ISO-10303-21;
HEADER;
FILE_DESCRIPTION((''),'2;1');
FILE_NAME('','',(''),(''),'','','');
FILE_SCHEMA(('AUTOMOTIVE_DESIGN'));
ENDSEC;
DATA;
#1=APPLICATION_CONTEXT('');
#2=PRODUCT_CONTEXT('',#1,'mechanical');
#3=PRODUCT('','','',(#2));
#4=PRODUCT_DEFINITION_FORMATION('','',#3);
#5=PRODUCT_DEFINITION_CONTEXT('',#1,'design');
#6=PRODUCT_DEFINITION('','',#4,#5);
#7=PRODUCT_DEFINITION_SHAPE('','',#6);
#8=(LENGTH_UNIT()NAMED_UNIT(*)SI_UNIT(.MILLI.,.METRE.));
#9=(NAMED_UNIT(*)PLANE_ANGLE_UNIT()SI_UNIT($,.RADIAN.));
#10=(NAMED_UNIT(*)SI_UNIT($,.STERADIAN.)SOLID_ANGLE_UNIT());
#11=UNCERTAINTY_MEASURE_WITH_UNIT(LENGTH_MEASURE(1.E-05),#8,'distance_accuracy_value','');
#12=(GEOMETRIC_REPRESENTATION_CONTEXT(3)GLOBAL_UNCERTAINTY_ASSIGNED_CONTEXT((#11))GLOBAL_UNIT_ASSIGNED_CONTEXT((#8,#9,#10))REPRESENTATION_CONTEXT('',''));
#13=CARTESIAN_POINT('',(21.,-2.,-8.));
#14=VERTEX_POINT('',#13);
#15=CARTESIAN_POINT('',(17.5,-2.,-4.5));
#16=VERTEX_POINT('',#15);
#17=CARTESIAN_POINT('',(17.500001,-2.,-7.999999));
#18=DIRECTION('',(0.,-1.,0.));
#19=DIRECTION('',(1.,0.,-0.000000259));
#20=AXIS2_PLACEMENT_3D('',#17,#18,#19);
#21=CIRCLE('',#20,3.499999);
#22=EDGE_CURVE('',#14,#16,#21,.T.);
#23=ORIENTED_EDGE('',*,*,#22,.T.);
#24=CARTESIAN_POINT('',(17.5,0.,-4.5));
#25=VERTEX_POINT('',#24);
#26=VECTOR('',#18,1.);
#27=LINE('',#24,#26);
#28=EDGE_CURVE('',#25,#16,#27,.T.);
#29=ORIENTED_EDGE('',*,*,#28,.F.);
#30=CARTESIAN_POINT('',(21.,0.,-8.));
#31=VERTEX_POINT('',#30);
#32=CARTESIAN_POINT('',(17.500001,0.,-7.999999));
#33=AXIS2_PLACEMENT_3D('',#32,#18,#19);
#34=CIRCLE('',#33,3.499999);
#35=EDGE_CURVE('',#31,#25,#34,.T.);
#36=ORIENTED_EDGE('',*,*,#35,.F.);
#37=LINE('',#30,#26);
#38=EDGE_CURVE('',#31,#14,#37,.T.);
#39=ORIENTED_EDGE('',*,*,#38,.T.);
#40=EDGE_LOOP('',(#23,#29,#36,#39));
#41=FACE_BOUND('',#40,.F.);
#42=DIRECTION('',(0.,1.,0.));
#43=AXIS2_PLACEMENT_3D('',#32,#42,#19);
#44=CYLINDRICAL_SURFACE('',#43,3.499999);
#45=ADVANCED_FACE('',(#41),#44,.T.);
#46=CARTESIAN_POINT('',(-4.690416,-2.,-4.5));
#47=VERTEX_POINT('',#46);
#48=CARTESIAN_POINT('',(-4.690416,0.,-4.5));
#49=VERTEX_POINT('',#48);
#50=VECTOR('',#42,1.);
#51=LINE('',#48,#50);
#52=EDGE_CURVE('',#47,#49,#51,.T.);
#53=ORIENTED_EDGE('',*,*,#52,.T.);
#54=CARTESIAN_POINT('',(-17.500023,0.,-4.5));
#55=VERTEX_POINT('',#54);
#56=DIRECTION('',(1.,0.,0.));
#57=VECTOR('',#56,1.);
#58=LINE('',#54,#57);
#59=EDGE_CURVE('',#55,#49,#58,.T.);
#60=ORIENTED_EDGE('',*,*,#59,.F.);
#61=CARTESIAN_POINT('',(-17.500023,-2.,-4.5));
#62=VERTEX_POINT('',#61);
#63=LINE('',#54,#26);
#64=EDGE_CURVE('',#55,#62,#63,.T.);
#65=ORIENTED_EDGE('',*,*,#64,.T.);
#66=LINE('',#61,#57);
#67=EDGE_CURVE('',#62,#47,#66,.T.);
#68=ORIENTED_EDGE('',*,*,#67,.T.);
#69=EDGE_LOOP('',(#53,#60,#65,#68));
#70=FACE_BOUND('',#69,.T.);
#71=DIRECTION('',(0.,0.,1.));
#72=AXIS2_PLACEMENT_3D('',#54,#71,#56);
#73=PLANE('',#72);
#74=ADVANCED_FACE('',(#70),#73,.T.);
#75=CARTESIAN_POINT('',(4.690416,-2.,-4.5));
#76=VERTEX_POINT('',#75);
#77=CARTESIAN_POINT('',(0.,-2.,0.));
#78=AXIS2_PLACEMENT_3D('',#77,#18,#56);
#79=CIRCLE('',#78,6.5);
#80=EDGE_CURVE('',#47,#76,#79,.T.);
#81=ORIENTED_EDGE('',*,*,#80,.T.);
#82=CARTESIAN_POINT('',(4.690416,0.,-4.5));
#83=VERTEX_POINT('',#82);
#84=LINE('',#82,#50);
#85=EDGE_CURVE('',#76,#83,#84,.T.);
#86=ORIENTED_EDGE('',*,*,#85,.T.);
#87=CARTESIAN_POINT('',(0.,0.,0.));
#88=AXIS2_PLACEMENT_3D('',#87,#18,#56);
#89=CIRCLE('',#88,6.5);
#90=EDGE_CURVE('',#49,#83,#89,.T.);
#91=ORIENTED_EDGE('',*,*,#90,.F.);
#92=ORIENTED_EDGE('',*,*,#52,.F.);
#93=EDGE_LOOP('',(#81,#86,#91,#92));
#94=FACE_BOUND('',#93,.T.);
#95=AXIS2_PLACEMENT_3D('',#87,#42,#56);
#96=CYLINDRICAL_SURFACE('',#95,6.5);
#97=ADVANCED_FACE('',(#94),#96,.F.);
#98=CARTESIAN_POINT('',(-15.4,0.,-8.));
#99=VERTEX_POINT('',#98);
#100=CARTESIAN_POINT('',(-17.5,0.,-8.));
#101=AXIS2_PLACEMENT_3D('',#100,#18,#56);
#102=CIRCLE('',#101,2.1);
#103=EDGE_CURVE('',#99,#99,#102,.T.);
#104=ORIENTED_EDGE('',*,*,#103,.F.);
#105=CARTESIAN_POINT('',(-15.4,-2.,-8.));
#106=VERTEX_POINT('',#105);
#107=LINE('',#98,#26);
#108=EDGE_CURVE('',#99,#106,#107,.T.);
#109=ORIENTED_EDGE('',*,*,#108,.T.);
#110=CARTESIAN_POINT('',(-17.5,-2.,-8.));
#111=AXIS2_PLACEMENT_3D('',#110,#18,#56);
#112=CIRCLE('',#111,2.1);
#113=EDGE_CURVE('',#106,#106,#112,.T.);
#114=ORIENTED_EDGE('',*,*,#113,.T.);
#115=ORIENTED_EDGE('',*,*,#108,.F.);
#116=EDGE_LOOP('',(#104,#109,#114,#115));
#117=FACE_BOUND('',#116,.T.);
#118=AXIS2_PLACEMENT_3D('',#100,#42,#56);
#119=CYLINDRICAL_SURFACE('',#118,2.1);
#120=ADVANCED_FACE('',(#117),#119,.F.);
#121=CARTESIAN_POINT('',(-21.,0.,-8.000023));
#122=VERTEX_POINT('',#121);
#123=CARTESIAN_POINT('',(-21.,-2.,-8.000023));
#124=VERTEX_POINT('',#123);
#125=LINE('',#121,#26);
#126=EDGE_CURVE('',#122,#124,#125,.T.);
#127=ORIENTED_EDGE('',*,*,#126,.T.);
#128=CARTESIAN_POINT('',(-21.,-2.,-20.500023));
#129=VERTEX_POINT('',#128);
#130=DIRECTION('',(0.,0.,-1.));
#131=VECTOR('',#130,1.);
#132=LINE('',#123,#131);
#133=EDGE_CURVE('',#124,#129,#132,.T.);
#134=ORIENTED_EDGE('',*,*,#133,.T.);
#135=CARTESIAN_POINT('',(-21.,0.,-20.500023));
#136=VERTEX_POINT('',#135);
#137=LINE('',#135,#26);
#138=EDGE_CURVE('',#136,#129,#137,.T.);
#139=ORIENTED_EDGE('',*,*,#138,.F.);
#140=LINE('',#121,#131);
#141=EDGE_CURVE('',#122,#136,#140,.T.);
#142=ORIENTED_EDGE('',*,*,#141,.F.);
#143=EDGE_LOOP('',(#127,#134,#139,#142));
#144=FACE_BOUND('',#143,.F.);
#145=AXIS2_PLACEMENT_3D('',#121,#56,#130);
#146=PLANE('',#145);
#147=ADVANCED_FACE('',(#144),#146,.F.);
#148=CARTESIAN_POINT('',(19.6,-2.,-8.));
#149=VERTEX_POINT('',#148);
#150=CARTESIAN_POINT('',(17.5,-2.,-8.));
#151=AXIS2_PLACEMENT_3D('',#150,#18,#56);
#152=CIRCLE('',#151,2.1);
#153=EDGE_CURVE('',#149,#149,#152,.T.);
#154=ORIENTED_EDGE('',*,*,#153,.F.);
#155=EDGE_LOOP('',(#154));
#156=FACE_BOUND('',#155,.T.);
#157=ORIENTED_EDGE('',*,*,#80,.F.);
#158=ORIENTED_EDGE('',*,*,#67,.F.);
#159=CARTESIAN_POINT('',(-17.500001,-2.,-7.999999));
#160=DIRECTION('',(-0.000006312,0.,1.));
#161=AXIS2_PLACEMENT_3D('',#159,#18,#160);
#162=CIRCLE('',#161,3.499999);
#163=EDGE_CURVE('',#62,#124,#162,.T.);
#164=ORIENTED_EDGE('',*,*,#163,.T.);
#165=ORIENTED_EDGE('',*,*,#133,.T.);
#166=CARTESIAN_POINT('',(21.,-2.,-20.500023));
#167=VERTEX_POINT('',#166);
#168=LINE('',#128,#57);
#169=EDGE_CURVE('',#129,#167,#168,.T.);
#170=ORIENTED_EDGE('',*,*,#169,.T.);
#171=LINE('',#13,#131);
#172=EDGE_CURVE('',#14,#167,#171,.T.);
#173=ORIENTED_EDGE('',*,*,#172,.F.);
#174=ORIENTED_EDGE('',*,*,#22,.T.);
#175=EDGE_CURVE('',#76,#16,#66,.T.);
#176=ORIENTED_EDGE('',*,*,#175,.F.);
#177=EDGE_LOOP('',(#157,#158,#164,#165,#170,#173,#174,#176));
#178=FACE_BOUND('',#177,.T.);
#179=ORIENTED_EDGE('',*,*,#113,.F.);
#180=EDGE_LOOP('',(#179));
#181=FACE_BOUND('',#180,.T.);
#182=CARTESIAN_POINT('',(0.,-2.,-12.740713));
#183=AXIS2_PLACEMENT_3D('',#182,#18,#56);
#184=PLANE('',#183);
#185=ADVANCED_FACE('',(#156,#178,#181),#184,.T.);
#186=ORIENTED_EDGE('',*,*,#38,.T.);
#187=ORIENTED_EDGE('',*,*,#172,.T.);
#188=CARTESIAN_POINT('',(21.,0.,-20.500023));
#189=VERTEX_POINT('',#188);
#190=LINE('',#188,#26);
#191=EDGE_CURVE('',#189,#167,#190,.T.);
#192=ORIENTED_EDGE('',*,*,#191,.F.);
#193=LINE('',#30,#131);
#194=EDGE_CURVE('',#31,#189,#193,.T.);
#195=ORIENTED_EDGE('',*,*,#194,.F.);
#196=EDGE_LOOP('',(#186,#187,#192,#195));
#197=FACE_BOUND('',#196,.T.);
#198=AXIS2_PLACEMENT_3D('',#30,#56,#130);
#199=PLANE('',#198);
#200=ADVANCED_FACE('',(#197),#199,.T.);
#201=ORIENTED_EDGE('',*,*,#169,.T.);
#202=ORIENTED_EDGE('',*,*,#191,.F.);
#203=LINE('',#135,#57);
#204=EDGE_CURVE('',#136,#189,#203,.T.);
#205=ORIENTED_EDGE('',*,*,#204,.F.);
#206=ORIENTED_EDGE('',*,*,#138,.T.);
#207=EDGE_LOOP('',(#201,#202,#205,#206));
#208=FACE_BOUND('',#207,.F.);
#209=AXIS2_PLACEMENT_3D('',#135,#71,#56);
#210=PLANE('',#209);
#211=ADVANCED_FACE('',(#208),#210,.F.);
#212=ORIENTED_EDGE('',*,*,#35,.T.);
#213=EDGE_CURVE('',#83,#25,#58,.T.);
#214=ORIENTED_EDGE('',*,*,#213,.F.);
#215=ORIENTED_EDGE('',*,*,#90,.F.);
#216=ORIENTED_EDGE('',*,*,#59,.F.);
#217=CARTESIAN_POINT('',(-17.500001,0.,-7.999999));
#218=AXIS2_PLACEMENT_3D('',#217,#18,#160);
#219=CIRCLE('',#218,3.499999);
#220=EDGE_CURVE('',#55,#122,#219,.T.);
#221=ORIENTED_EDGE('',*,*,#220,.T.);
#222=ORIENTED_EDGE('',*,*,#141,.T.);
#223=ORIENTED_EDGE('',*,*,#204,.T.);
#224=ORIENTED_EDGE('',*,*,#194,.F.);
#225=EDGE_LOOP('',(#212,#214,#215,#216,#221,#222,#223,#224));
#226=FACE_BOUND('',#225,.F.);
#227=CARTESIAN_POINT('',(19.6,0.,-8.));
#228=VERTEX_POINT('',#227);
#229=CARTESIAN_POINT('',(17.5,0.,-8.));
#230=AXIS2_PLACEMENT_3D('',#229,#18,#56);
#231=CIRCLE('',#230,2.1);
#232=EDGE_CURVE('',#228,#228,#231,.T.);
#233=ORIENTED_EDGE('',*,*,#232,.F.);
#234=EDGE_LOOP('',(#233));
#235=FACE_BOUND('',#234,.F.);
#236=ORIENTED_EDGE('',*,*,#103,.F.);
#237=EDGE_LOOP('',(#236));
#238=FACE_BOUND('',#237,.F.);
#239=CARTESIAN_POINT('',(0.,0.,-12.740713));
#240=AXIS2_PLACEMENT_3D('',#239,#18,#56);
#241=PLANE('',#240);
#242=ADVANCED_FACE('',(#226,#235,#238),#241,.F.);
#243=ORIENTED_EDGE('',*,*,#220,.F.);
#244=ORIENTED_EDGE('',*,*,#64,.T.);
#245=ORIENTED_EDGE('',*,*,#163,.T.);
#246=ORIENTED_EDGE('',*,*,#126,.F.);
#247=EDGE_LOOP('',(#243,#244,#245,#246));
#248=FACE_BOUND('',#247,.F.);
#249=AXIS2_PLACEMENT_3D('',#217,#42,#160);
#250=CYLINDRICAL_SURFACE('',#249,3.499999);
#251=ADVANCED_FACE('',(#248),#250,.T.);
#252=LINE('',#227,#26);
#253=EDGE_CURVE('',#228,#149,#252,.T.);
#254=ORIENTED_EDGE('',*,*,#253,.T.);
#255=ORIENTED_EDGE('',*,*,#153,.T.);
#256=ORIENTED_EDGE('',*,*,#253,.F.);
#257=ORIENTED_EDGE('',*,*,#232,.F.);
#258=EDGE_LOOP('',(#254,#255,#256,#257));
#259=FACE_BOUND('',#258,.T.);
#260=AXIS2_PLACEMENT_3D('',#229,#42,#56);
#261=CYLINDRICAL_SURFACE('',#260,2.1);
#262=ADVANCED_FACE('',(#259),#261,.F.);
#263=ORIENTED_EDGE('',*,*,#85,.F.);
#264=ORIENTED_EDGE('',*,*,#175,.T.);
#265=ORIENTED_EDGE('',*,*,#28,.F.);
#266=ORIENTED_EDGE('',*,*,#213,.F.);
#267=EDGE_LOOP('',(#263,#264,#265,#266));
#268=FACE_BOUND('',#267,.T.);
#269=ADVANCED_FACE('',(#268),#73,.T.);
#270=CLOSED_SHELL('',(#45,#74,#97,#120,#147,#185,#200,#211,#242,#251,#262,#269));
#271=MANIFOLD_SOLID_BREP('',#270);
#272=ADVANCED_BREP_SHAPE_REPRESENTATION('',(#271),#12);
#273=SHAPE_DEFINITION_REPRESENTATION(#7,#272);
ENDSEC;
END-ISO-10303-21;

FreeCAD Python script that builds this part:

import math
import FreeCAD as App
import Part
import Sketcher

V = App.Vector

doc = App.newDocument("Part")
body = doc.addObject("PartDesign::Body", "Body")

sketch1 = doc.addObject("Sketcher::SketchObject", "Sketch")
body.addObject(sketch1)
sketch1.AttachmentSupport = (doc.XZ_Plane, [""])
sketch1.MapMode = "FlatFace"
sketch1.addGeometry(Part.Circle(V(0, 8, 0), V(0, 0, 1), 6.5), False)
sketch1.addConstraint(Sketcher.Constraint("PointOnObject", 0, 3, -2))
sketch1.addConstraint(Sketcher.Constraint("Diameter", 0, 13.0))
sketch1.addConstraint(Sketcher.Constraint("DistanceY", -1, 1, 0, 3, 8.0))
pad1 = doc.addObject("PartDesign::Pad", "Pad")
body.addObject(pad1)
pad1.Profile = sketch1
pad1.Length = 2
body2 = doc.addObject("PartDesign::Body", "Body001")

sketch2 = doc.addObject("Sketcher::SketchObject", "Sketch001")
body2.addObject(sketch2)
sketch2.AttachmentSupport = (doc.getObject("XZ_Plane001"), [""])
sketch2.MapMode = "FlatFace"
sketch2.addGeometry(Part.ArcOfCircle(Part.Circle(V(-17.500001, 0.000001, 0), V(0, 0, 1), 3.499999), math.radians(90.000362), math.radians(180.000391)), False)
sketch2.addGeometry(Part.LineSegment(V(-21, -0.000023, 0), V(-21, -12.500023, 0)), False)
sketch2.addGeometry(Part.LineSegment(V(-21, -12.500023, 0), V(21, -12.500023, 0)), False)
sketch2.addGeometry(Part.LineSegment(V(21, -12.500023, 0), V(21, 0, 0)), False)
sketch2.addGeometry(Part.ArcOfCircle(Part.Circle(V(17.500001, 0.000001, 0), V(0, 0, 1), 3.499999), math.radians(-0.000015), math.radians(90.000015)), False)
sketch2.addGeometry(Part.LineSegment(V(17.5, 3.5, 0), V(-17.500023, 3.5, 0)), False)
sketch2.addGeometry(Part.Circle(V(-17.5, 0, 0), V(0, 0, 1), 2.1), False)
sketch2.addGeometry(Part.Circle(V(17.5, 0, 0), V(0, 0, 1), 2.1), False)
sketch2.addConstraint(Sketcher.Constraint("Coincident", 0, 2, 1, 1))
sketch2.addConstraint(Sketcher.Constraint("Coincident", 1, 2, 2, 1))
sketch2.addConstraint(Sketcher.Constraint("Coincident", 2, 2, 3, 1))
sketch2.addConstraint(Sketcher.Constraint("Tangent", 3, 2, 4, 1))
sketch2.addConstraint(Sketcher.Constraint("Tangent", 4, 2, 5, 1))
sketch2.addConstraint(Sketcher.Constraint("Coincident", 5, 2, 0, 1))
sketch2.addConstraint(Sketcher.Constraint("Vertical", 1))
sketch2.addConstraint(Sketcher.Constraint("Horizontal", 2))
sketch2.addConstraint(Sketcher.Constraint("Vertical", 3))
sketch2.addConstraint(Sketcher.Constraint("Horizontal", 5))
sketch2.addConstraint(Sketcher.Constraint("Coincident", 6, 3, 0, 3))
sketch2.addConstraint(Sketcher.Constraint("Coincident", 7, 3, 4, 3))
sketch2.addConstraint(Sketcher.Constraint("Equal", 0, 4))
sketch2.addConstraint(Sketcher.Constraint("Equal", 6, 7))
sketch2.addConstraint(Sketcher.Constraint("Symmetric", 0, 3, 4, 3, -1, 1))
sketch2.addConstraint(Sketcher.Constraint("Diameter", 6, 4.2))
sketch2.addConstraint(Sketcher.Constraint("Radius", 0, 3.499999))
sketch2.addConstraint(Sketcher.Constraint("DistanceX", 2, 1, 2, 2, 42.0))
sketch2.addConstraint(Sketcher.Constraint("DistanceY", 1, 2, 1, 1, 12.5))
sketch2.addConstraint(Sketcher.Constraint("DistanceX", 5, 2, 5, 1, 35.000023))
sketch2.addConstraint(Sketcher.Constraint("DistanceY", 3, 1, 3, 2, 12.500023))
pad2 = doc.addObject("PartDesign::Pad", "Pad001")
body2.addObject(pad2)
pad2.Profile = sketch2
pad2.Length = 2
doc.recompute()

boolean = doc.addObject("PartDesign::Boolean", "Boolean")
body2.addObject(boolean)
boolean.Type = "Cut"
boolean.addObjects([body])
body3 = doc.addObject("PartDesign::Body", "Body002")
doc.recompute()

body2.Placement = App.Placement(V(0, 0, -8), App.Rotation(V(0, 0, 1), 0))
boolean2 = doc.addObject("PartDesign::Boolean", "Boolean001")
body3.addObject(boolean2)
boolean2.Type = "Fuse"
boolean2.addObjects([body2])

doc.recompute()
